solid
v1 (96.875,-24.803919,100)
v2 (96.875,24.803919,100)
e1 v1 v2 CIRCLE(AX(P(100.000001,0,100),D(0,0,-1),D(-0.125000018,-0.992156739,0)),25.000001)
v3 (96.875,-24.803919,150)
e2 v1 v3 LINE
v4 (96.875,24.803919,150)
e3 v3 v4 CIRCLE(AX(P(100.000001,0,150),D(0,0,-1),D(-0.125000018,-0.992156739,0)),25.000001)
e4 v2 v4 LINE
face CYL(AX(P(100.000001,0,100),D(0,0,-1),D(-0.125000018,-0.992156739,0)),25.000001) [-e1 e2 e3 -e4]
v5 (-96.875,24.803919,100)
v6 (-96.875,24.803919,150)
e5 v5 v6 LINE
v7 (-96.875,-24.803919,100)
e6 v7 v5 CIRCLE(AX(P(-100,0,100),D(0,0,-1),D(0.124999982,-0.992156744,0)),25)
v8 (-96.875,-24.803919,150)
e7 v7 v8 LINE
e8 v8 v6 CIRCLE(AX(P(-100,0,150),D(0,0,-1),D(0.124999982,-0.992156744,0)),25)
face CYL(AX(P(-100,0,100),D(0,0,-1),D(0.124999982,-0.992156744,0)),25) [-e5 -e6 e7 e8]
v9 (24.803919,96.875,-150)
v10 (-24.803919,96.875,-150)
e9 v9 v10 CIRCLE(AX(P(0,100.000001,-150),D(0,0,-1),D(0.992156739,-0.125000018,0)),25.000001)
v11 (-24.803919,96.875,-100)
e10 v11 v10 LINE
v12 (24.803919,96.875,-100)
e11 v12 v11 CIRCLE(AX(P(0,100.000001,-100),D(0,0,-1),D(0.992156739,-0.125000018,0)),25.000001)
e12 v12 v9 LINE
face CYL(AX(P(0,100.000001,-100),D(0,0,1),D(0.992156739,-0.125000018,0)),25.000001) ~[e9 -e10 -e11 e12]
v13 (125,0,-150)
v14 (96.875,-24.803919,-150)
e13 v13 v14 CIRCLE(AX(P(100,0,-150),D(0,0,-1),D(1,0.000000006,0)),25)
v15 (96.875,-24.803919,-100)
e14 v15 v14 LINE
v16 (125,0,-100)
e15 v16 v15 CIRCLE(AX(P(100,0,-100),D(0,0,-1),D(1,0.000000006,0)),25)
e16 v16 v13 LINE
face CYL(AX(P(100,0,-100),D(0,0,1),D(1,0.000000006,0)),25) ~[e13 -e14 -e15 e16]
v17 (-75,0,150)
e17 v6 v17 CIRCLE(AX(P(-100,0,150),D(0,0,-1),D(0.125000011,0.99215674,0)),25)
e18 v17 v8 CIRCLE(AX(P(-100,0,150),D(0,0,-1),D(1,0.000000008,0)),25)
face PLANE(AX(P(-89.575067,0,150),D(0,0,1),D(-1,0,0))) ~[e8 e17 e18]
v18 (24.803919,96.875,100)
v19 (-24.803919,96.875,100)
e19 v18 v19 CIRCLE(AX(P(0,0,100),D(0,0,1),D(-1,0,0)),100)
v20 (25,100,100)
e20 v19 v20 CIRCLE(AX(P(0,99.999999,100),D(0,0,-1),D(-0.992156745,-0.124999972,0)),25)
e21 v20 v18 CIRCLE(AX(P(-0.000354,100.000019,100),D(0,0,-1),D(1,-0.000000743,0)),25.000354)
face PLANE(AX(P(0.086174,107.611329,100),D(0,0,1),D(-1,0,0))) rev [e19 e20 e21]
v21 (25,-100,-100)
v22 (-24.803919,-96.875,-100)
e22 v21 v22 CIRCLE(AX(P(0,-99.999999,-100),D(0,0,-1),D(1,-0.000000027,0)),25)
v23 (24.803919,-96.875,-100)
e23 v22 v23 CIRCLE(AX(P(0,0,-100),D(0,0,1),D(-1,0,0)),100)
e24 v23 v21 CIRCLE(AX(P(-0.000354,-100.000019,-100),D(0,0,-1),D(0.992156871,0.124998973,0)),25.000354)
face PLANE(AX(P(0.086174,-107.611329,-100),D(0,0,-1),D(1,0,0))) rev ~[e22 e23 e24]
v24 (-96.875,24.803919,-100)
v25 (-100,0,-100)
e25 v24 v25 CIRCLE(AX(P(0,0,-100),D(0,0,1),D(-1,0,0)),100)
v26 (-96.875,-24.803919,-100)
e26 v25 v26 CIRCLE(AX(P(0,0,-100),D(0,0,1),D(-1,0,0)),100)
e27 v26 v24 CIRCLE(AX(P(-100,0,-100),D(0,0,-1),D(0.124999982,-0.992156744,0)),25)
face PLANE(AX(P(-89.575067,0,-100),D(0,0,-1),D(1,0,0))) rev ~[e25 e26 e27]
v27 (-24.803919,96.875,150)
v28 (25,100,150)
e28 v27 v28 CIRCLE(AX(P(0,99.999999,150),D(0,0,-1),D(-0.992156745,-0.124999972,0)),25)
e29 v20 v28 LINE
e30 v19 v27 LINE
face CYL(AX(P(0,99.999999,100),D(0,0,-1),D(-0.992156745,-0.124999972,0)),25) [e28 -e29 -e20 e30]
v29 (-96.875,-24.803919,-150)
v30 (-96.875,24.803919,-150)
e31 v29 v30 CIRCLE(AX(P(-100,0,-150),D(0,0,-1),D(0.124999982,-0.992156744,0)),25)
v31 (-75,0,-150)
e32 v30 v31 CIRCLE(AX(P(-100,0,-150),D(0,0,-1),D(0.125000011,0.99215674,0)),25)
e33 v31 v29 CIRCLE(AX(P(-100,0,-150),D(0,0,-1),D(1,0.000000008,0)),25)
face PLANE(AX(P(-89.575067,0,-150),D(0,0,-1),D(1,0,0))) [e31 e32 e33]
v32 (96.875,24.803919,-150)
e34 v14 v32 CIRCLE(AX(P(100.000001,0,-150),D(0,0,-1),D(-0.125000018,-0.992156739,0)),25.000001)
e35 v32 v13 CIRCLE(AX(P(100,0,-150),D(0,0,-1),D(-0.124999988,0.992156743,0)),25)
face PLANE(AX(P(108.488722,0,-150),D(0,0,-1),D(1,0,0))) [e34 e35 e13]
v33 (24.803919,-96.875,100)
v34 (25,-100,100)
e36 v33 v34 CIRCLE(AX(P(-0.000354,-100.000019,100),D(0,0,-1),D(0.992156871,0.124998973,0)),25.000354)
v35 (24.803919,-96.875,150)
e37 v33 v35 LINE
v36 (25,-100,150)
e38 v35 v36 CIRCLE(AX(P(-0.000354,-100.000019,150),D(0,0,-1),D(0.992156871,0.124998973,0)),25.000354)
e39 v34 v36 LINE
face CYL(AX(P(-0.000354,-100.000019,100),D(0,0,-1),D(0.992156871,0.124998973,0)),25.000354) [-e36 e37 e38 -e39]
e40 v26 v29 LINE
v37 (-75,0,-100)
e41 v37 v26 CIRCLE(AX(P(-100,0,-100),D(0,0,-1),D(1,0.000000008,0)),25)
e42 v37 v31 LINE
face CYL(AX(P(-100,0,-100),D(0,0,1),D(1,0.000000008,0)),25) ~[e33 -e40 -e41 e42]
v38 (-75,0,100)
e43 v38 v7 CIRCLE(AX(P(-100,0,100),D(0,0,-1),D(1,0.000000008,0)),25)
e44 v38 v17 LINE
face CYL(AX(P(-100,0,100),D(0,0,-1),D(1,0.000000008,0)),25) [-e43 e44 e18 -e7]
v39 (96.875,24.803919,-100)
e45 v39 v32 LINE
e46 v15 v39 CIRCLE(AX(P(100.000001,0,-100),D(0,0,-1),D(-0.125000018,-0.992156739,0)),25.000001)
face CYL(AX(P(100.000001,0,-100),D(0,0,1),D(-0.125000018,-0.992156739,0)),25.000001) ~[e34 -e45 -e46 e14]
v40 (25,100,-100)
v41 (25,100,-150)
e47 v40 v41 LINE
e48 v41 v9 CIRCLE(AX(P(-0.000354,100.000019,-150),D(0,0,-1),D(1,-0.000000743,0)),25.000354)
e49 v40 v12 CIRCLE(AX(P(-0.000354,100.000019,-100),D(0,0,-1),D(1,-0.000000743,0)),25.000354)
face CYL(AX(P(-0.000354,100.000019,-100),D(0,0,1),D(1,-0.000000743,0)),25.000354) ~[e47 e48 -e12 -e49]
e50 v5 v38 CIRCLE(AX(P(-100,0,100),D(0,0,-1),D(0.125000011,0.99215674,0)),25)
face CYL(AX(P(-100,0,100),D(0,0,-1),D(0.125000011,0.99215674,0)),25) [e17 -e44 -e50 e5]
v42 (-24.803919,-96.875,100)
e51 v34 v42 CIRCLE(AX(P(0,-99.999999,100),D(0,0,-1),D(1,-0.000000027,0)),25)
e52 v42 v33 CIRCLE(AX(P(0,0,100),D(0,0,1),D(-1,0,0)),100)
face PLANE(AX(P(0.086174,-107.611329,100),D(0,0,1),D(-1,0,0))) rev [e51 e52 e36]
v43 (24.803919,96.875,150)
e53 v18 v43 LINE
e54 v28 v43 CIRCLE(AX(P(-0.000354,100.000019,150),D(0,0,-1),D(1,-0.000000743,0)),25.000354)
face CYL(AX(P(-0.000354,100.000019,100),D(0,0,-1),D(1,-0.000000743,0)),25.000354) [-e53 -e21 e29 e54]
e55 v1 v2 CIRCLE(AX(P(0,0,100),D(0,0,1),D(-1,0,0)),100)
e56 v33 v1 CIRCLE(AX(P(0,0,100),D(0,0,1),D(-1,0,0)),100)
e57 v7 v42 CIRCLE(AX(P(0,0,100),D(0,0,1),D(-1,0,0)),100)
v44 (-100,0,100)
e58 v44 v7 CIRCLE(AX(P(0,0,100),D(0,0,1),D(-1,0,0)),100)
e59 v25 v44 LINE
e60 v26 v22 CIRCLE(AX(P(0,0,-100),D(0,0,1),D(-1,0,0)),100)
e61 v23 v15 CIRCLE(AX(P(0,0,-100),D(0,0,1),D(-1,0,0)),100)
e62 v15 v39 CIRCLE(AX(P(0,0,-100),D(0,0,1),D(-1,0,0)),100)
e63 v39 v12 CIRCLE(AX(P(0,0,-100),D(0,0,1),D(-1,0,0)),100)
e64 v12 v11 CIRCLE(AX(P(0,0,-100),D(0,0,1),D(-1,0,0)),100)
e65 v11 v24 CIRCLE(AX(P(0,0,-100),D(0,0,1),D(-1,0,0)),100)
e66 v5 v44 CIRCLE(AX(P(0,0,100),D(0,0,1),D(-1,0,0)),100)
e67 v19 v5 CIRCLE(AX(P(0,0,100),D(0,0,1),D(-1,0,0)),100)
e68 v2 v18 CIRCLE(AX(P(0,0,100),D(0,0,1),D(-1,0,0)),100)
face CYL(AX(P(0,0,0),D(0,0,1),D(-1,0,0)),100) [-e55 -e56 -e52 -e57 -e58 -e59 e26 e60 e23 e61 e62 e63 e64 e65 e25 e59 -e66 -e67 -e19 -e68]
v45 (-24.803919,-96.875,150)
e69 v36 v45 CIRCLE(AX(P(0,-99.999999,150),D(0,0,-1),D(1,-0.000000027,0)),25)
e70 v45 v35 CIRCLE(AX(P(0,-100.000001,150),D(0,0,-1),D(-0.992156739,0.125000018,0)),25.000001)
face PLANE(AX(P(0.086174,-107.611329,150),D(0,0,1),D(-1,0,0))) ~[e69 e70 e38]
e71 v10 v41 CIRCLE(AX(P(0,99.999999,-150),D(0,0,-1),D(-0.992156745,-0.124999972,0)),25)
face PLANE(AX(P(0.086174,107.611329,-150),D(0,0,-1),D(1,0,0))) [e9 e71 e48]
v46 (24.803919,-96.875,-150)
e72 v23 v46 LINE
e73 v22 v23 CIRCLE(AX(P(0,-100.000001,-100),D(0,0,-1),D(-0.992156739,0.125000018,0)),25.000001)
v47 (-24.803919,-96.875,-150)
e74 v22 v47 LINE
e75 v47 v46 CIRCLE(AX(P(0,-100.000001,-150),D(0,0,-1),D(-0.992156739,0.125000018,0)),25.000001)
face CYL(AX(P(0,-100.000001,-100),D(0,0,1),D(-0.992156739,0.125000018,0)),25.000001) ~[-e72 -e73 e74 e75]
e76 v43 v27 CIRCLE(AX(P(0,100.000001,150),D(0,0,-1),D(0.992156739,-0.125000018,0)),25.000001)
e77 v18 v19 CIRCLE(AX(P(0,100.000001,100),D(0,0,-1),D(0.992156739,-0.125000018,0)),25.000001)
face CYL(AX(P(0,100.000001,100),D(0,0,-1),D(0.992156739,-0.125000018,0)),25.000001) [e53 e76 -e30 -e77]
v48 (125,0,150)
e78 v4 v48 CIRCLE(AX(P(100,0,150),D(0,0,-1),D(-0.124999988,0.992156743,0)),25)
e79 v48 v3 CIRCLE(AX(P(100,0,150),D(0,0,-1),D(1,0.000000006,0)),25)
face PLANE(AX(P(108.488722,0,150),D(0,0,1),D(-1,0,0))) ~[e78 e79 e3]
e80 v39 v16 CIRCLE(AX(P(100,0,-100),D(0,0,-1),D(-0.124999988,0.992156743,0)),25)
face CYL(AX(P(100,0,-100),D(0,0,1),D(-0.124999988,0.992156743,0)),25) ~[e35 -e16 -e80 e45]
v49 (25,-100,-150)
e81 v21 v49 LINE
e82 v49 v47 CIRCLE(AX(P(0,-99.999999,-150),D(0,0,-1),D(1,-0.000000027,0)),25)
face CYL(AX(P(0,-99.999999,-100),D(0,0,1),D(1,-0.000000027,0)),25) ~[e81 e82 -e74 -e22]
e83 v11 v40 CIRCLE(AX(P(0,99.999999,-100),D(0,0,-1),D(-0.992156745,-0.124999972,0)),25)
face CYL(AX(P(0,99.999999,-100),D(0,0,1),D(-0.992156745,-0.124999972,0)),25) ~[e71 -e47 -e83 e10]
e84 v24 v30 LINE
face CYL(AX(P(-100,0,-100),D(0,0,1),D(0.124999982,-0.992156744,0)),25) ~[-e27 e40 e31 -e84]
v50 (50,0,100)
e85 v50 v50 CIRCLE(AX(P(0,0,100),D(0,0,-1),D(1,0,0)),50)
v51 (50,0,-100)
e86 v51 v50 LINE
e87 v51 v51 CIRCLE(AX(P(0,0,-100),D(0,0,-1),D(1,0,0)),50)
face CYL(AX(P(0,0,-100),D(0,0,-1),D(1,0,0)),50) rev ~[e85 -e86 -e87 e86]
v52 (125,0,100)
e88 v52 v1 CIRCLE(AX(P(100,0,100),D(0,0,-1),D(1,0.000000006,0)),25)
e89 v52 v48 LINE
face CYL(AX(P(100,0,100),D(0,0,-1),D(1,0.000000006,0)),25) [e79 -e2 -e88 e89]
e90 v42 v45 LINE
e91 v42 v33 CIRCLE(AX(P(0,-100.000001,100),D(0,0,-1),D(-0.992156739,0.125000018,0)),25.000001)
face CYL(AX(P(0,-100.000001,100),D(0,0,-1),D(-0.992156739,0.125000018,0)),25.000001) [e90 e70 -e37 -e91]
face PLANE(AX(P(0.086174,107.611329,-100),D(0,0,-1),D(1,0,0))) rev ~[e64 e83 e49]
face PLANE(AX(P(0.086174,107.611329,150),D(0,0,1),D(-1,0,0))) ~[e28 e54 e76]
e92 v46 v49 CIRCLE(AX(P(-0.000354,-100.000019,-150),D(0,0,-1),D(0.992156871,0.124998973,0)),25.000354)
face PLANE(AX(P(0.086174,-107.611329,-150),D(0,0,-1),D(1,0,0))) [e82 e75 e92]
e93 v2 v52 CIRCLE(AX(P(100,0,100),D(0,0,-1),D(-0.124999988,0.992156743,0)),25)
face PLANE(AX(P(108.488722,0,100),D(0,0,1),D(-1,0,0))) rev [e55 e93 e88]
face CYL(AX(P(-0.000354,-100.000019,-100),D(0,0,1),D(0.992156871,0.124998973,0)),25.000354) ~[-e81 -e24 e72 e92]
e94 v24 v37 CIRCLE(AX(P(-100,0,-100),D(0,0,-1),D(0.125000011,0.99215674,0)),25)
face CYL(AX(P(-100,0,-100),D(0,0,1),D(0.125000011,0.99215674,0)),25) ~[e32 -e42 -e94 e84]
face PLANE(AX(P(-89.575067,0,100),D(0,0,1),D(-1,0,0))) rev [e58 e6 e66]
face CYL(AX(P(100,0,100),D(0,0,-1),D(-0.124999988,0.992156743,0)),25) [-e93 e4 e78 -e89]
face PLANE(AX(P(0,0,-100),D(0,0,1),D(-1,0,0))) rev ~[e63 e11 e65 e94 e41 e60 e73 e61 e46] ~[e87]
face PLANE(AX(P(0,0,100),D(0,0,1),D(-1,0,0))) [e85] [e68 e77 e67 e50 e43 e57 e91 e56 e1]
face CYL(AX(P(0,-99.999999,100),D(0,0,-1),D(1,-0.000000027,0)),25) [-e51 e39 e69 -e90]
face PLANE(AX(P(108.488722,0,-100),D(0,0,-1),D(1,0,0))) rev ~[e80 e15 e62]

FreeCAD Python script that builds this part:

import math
import FreeCAD as App
import Part
import Sketcher

doc = App.newDocument("Part")
body = doc.addObject("PartDesign::Body", "Body")

# Sketch on XZ plane
sketch1 = body.newObject("Sketcher::SketchObject", "Sketch")
sketch1.AttachmentSupport = (doc.getObject("XZ_Plane"), [""])
sketch1.MapMode = "FlatFace"
sketch1.addGeometry([
    Part.LineSegment(App.Vector(-100, 100, 0), App.Vector(-100, -100, 0)),
    Part.LineSegment(App.Vector(-100, -100, 0), App.Vector(0, -100, 0)),
    Part.LineSegment(App.Vector(0, -100, 0), App.Vector(0, 100, 0)),
    Part.LineSegment(App.Vector(0, 100, 0), App.Vector(-100, 100, 0)),
], False)
sketch1.addConstraint([
    Sketcher.Constraint("Coincident", 0, 2, 1, 1),
    Sketcher.Constraint("Coincident", 1, 2, 2, 1),
    Sketcher.Constraint("Coincident", 2, 2, 3, 1),
    Sketcher.Constraint("Coincident", 3, 2, 0, 1),
    Sketcher.Constraint("Vertical", 0),
    Sketcher.Constraint("Horizontal", 1),
    Sketcher.Constraint("Vertical", 2),
    Sketcher.Constraint("Horizontal", 3),
    Sketcher.Constraint("Symmetric", 1, 2, 2, 2, -1, 1),
    Sketcher.Constraint("DistanceX", 1, 1, 1, 2, 100.0),
    Sketcher.Constraint("DistanceY", 0, 2, 0, 1, 200.0),
])
revolution = body.newObject("PartDesign::Revolution", "Revolution")
revolution.Profile = sketch1
revolution.ReferenceAxis = (sketch1, ["V_Axis"])
revolution.Angle = 360

# Sketch on XY plane
sketch2 = body.newObject("Sketcher::SketchObject", "Sketch001")
sketch2.AttachmentSupport = (doc.getObject("XY_Plane"), [""])
sketch2.MapMode = "FlatFace"
sketch2.AttachmentOffset = App.Placement(App.Vector(0, 0, -100), App.Rotation())
sketch2.addGeometry(Part.Circle(App.Vector(0, 0, 0), App.Vector(0, 0, 1), 50), False)
sketch2.addConstraint([
    Sketcher.Constraint("Coincident", 0, 3, -1, 1),
    Sketcher.Constraint("Diameter", 0, 100.0),
])
pocket1 = body.newObject("PartDesign::Pocket", "Pocket")
pocket1.Profile = sketch2
pocket1.Length = 200
pocket1.Reversed = True

# Sketch on XY plane
sketch3 = body.newObject("Sketcher::SketchObject", "Sketch002")
sketch3.AttachmentSupport = (doc.getObject("XY_Plane"), [""])
sketch3.MapMode = "FlatFace"
sketch3.AttachmentOffset = App.Placement(App.Vector(0, 0, -100), App.Rotation())
sketch3.addGeometry([
    Part.ArcOfCircle(Part.Circle(App.Vector(-100, 0, 0), App.Vector(0, 0, 1), 25), math.radians(0), math.radians(82.819244)),  # 0
    Part.ArcOfCircle(Part.Circle(App.Vector(-100, 0, 0), App.Vector(0, 0, 1), 25), math.radians(-82.819244), math.radians(0)),  # 1
    Part.ArcOfCircle(Part.Circle(App.Vector(-100, 0, 0), App.Vector(0, 0, 1), 25), math.radians(82.819245), math.radians(277.180755)),  # 2
    Part.ArcOfCircle(Part.Circle(App.Vector(0, 99.999999, 0), App.Vector(0, 0, 1), 25), math.radians(0.000002), math.radians(187.180754)),  # 3
    Part.ArcOfCircle(Part.Circle(App.Vector(-0.000354, 100.000019, 0), App.Vector(0, 0, 1), 25.000354), math.radians(-7.180696), math.radians(-0.000043)),  # 4
    Part.ArcOfCircle(Part.Circle(App.Vector(0, 100.000001, 0), App.Vector(0, 0, 1), 25.000001), math.radians(-172.819243), math.radians(-7.180757)),  # 5
    Part.ArcOfCircle(Part.Circle(App.Vector(-0.000354, -100.000019, 0), App.Vector(0, 0, 1), 25.000354), math.radians(0.000043), math.radians(7.180696)),  # 6
    Part.ArcOfCircle(Part.Circle(App.Vector(0, -99.999999, 0), App.Vector(0, 0, 1), 25), math.radians(172.819246), math.radians(359.999998)),  # 7
    Part.ArcOfCircle(Part.Circle(App.Vector(0, -100.000001, 0), App.Vector(0, 0, 1), 25.000001), math.radians(7.180757), math.radians(172.819243)),  # 8
    Part.ArcOfCircle(Part.Circle(App.Vector(100, 0, 0), App.Vector(0, 0, 1), 25), math.radians(0), math.radians(97.180755)),  # 9
    Part.ArcOfCircle(Part.Circle(App.Vector(100, 0, 0), App.Vector(0, 0, 1), 25), math.radians(-97.180755), math.radians(0)),  # 10
    Part.ArcOfCircle(Part.Circle(App.Vector(100.000001, 0, 0), App.Vector(0, 0, 1), 25.000001), math.radians(97.180757), math.radians(262.819243)),  # 11
], False)
sketch3.addConstraint([
    Sketcher.Constraint("Coincident", 0, 1, 1, 2),
    Sketcher.Constraint("Coincident", 1, 1, 2, 2),
    Sketcher.Constraint("Coincident", 2, 1, 0, 2),
    Sketcher.Constraint("Coincident", 3, 1, 4, 2),
    Sketcher.Constraint("Coincident", 4, 1, 5, 2),
    Sketcher.Constraint("Coincident", 5, 1, 3, 2),
    Sketcher.Constraint("Coincident", 6, 1, 7, 2),
    Sketcher.Constraint("Coincident", 7, 1, 8, 2),
    Sketcher.Constraint("Coincident", 8, 1, 6, 2),
    Sketcher.Constraint("Coincident", 9, 1, 10, 2),
    Sketcher.Constraint("Coincident", 10, 1, 11, 2),
    Sketcher.Constraint("Coincident", 11, 1, 9, 2),
    Sketcher.Constraint("Coincident", 1, 3, 0, 3),
    Sketcher.Constraint("Coincident", 5, 3, 3, 3),
    Sketcher.Constraint("Coincident", 8, 3, 7, 3),
    Sketcher.Constraint("Coincident", 10, 3, 9, 3),
    Sketcher.Constraint("PointOnObject", 0, 3, -1),
    Sketcher.Constraint("PointOnObject", 3, 3, -2),
    Sketcher.Constraint("PointOnObject", 7, 3, -2),
    Sketcher.Constraint("PointOnObject", 9, 3, -1),
    Sketcher.Constraint("PointOnObject", 0, 1, -1),
    Sketcher.Constraint("PointOnObject", 9, 1, -1),
    Sketcher.Constraint("Radius", 0, 25.0),
    Sketcher.Constraint("Radius", 2, 25.0),
    Sketcher.Constraint("Radius", 3, 25.0),
    Sketcher.Constraint("Radius", 7, 25.0),
    Sketcher.Constraint("Radius", 9, 25.0),
    Sketcher.Constraint("Radius", 11, 25.000001),
    Sketcher.Constraint("DistanceX", 0, 3, -1, 1, 100.0),
    Sketcher.Constraint("DistanceY", -1, 1, 3, 3, 99.999999),
    Sketcher.Constraint("DistanceY", 7, 3, -1, 1, 99.999999),
    Sketcher.Constraint("DistanceX", -1, 1, 9, 3, 100.0),
    Sketcher.Constraint("DistanceY", -1, 1, 3, 1, 100.0),
    Sketcher.Constraint("DistanceY", 6, 1, -1, 1, 100.0),
    Sketcher.Constraint("DistanceX", 1, 1, -1, 1, 96.875),
    Sketcher.Constraint("DistanceX", 2, 1, -1, 1, 96.875),
    Sketcher.Constraint("DistanceY", -1, 1, 4, 1, 96.875),
    Sketcher.Constraint("DistanceY", -1, 1, 5, 1, 96.875),
    Sketcher.Constraint("DistanceY", 7, 1, -1, 1, 96.875),
    Sketcher.Constraint("DistanceY", 8, 1, -1, 1, 96.875),
    Sketcher.Constraint("DistanceX", -1, 1, 10, 1, 96.875),
    Sketcher.Constraint("DistanceX", -1, 1, 11, 1, 96.875),
    Sketcher.Constraint("Radius", 4, 25.000354),
    Sketcher.Constraint("Radius", 6, 25.000354),
])
pad1 = body.newObject("PartDesign::Pad", "Pad")
pad1.Profile = sketch3
pad1.Length = 50
pad1.Reversed = True
body2 = doc.addObject("PartDesign::Body", "Body001")
doc.recompute()

body2.BaseFeature = body
doc.recompute()

mirroring = doc.addObject("Part::Mirroring", "Mirroring")
mirroring.Source = body
mirroring.Base = App.Vector(0, 0, 0)
mirroring.Normal = App.Vector(0, 0, 1)
body3 = doc.addObject("PartDesign::Body", "Body002")
body3.BaseFeature = mirroring
boolean = body2.newObject("PartDesign::Boolean", "Boolean")
boolean.Type = "Fuse"
boolean.addObjects([body3])
doc.recompute()
mirroring.Visibility = False

doc.recompute()
